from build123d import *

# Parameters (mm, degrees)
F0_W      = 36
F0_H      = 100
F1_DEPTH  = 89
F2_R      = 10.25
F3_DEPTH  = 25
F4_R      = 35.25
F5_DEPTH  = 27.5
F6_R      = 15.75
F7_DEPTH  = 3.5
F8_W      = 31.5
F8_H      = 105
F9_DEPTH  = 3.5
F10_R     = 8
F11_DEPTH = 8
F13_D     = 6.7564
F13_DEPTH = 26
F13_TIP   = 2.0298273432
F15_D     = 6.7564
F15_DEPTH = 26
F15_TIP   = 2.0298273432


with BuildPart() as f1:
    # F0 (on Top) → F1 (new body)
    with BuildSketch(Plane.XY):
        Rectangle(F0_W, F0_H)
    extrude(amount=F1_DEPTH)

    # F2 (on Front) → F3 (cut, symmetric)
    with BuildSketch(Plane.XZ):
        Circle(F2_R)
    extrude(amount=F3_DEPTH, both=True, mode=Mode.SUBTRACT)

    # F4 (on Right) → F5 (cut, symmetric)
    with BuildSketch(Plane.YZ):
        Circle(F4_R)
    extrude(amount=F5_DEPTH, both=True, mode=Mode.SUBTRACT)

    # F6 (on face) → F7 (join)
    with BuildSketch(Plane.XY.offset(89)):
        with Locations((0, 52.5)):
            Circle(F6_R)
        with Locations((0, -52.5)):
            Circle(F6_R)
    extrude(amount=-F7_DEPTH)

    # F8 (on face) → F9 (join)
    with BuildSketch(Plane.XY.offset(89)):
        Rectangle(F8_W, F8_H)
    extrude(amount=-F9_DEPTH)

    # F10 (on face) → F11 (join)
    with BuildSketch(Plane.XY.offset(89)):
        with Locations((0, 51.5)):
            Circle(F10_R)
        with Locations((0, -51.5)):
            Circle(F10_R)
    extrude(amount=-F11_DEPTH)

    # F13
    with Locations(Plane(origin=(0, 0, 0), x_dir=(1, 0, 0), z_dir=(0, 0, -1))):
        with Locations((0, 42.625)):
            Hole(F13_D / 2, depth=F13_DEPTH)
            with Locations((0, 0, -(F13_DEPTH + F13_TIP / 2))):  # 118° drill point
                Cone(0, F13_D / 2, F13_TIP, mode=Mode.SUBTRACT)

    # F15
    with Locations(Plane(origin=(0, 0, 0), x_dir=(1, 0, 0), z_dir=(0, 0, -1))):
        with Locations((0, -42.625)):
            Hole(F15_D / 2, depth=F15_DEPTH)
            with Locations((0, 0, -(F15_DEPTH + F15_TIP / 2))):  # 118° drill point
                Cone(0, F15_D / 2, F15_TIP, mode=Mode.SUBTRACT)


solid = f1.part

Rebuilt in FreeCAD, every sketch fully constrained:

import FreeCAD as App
import Part
import Sketcher

V = App.Vector
Q = App.Units.Quantity


def add_polygon(sketch, points):
    """Adds a closed chain of lines whose ends are joined by coincident constraints."""
    first, n = sketch.GeometryCount, len(points)
    for a, b in zip(points, points[1:] + points[:1]):
        sketch.addGeometry(Part.LineSegment(App.Vector(*a, 0), App.Vector(*b, 0)), False)
    for i in range(n):
        sketch.addConstraint(Sketcher.Constraint("Coincident", first + i, 2, first + (i + 1) % n, 1))

doc = App.newDocument("Part")
body = doc.addObject("PartDesign::Body", "Body")

# Sketch on XY plane
sketch1 = body.newObject("Sketcher::SketchObject", "Sketch")
sketch1.AttachmentSupport = (doc.getObject("XY_Plane"), [""])
sketch1.MapMode = "FlatFace"
add_polygon(sketch1, [(-18, 50), (-18, -50), (18, -50), (18, 50)])  # lines 0-3
sketch1.addConstraint([
    Sketcher.Constraint("Vertical", 0),
    Sketcher.Constraint("Horizontal", 1),
    Sketcher.Constraint("Vertical", 2),
    Sketcher.Constraint("Horizontal", 3),
    Sketcher.Constraint("Symmetric", 0, 2, 2, 2, -1, 1),
    Sketcher.Constraint("DistanceX", 1, 1, 1, 2, Q("36 mm")),
    Sketcher.Constraint("DistanceY", 0, 2, 0, 1, Q("100 mm")),
])
pad1 = body.newObject("PartDesign::Pad", "Pad")
pad1.Profile = sketch1
pad1.Length = 89

# Sketch on XZ plane
sketch2 = body.newObject("Sketcher::SketchObject", "Sketch001")
sketch2.AttachmentSupport = (doc.getObject("XZ_Plane"), [""])
sketch2.MapMode = "FlatFace"
sketch2.addGeometry(Part.Circle(V(0, 0, 0), V(0, 0, 1), 10.25), False)
sketch2.addConstraint([
    Sketcher.Constraint("Coincident", 0, 3, -1, 1),
    Sketcher.Constraint("Diameter", 0, Q("20.5 mm")),
])
pocket1 = body.newObject("PartDesign::Pocket", "Pocket")
pocket1.Profile = sketch2
pocket1.Length = 50
pocket1.Midplane = True

# Sketch on YZ plane
sketch3 = body.newObject("Sketcher::SketchObject", "Sketch002")
sketch3.AttachmentSupport = (doc.getObject("YZ_Plane"), [""])
sketch3.MapMode = "FlatFace"
sketch3.addGeometry(Part.Circle(V(0, 0, 0), V(0, 0, 1), 35.25), False)
sketch3.addConstraint([
    Sketcher.Constraint("Coincident", 0, 3, -1, 1),
    Sketcher.Constraint("Diameter", 0, Q("70.5 mm")),
])
pocket2 = body.newObject("PartDesign::Pocket", "Pocket001")
pocket2.Profile = sketch3
pocket2.Length = 55
pocket2.Midplane = True

# Sketch on XY plane
sketch4 = body.newObject("Sketcher::SketchObject", "Sketch003")
sketch4.AttachmentSupport = (doc.getObject("XY_Plane"), [""])
sketch4.MapMode = "FlatFace"
sketch4.AttachmentOffset = App.Placement(V(0, 0, 89), App.Rotation())
sketch4.addGeometry([
    Part.Circle(V(0, 52.5, 0), V(0, 0, 1), 15.75),
    Part.Circle(V(0, -52.5, 0), V(0, 0, 1), 15.75),
], False)
sketch4.addConstraint([
    Sketcher.Constraint("Equal", 0, 1),
    Sketcher.Constraint("Symmetric", 0, 3, 1, 3, -1, 1),
    Sketcher.Constraint("PointOnObject", 0, 3, -2),
    Sketcher.Constraint("Diameter", 0, Q("31.5 mm")),
    Sketcher.Constraint("DistanceY", 1, 3, 0, 3, Q("105 mm")),
])
pad2 = body.newObject("PartDesign::Pad", "Pad001")
pad2.Profile = sketch4
pad2.Length = 3.5
pad2.Reversed = True

# Sketch on XY plane
sketch5 = body.newObject("Sketcher::SketchObject", "Sketch004")
sketch5.AttachmentSupport = (doc.getObject("XY_Plane"), [""])
sketch5.MapMode = "FlatFace"
sketch5.AttachmentOffset = App.Placement(V(0, 0, 89), App.Rotation())
add_polygon(sketch5, [(-15.75, 52.5), (-15.75, -52.5), (15.75, -52.5), (15.75, 52.5)])  # lines 0-3
sketch5.addConstraint([
    Sketcher.Constraint("Vertical", 0),
    Sketcher.Constraint("Horizontal", 1),
    Sketcher.Constraint("Vertical", 2),
    Sketcher.Constraint("Horizontal", 3),
    Sketcher.Constraint("Symmetric", 0, 2, 2, 2, -1, 1),
    Sketcher.Constraint("DistanceY", 0, 2, 0, 1, Q("105 mm")),
    Sketcher.Constraint("DistanceX", 1, 1, 1, 2, Q("31.5 mm")),
])
pad3 = body.newObject("PartDesign::Pad", "Pad002")
pad3.Profile = sketch5
pad3.Length = 3.5
pad3.Reversed = True

# Sketch on XY plane
sketch6 = body.newObject("Sketcher::SketchObject", "Sketch005")
sketch6.AttachmentSupport = (doc.getObject("XY_Plane"), [""])
sketch6.MapMode = "FlatFace"
sketch6.AttachmentOffset = App.Placement(V(0, 0, 89), App.Rotation())
sketch6.addGeometry([
    Part.Circle(V(0, 51.5, 0), V(0, 0, 1), 8),
    Part.Circle(V(0, -51.5, 0), V(0, 0, 1), 8),
], False)
sketch6.addConstraint([
    Sketcher.Constraint("Equal", 0, 1),
    Sketcher.Constraint("Symmetric", 0, 3, 1, 3, -1, 1),
    Sketcher.Constraint("PointOnObject", 0, 3, -2),
    Sketcher.Constraint("Diameter", 0, Q("16 mm")),
    Sketcher.Constraint("DistanceY", 1, 3, 0, 3, Q("103 mm")),
])
pad4 = body.newObject("PartDesign::Pad", "Pad003")
pad4.Profile = sketch6
pad4.Length = 8
pad4.Reversed = True

# Sketch on XY plane
sketch7 = body.newObject("Sketcher::SketchObject", "Sketch006")
sketch7.AttachmentSupport = (doc.getObject("XY_Plane"), [""])
sketch7.MapMode = "FlatFace"
sketch7.addGeometry(Part.Circle(V(0, -42.625, 0), V(0, 0, 1), 3.3782), False)
sketch7.addConstraint([
    Sketcher.Constraint("PointOnObject", 0, 3, -2),
    Sketcher.Constraint("Diameter", 0, Q("6.7564 mm")),
    Sketcher.Constraint("DistanceY", 0, 3, -1, 1, Q("42.625 mm")),
])
doc.recompute()
hole = body.newObject("PartDesign::Hole", "Hole")
hole.Profile = sketch7
hole.ThreadType = "None"
hole.Diameter = 6.7564
hole.DepthType = "Dimension"
hole.Depth = 26
hole.DrillPoint = "Angled"
hole.DrillPointAngle = 118
hole.Reversed = True

# Sketch on XY plane
sketch8 = body.newObject("Sketcher::SketchObject", "Sketch007")
sketch8.AttachmentSupport = (doc.getObject("XY_Plane"), [""])
sketch8.MapMode = "FlatFace"
sketch8.addGeometry(Part.Circle(V(0, 42.625, 0), V(0, 0, 1), 3.3782), False)
sketch8.addConstraint([
    Sketcher.Constraint("PointOnObject", 0, 3, -2),
    Sketcher.Constraint("Diameter", 0, Q("6.7564 mm")),
    Sketcher.Constraint("DistanceY", -1, 1, 0, 3, Q("42.625 mm")),
])
doc.recompute()
hole2 = body.newObject("PartDesign::Hole", "Hole001")
hole2.Profile = sketch8
hole2.ThreadType = "None"
hole2.Diameter = 6.7564
hole2.DepthType = "Dimension"
hole2.Depth = 26
hole2.DrillPoint = "Angled"
hole2.DrillPointAngle = 118
hole2.Reversed = True

doc.recompute()
